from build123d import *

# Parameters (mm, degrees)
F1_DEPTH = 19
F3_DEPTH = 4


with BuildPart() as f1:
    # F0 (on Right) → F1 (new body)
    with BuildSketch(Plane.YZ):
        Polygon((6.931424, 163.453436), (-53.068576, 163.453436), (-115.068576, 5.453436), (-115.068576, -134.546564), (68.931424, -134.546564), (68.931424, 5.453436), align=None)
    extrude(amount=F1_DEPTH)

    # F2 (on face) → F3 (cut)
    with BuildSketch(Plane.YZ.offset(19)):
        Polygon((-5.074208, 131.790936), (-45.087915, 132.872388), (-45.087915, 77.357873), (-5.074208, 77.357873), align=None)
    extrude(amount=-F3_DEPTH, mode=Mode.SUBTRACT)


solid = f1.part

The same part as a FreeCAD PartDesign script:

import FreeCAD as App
import Part
import Sketcher


def add_polygon(sketch, points):
    """Adds a closed chain of lines whose ends are joined by coincident constraints."""
    first, n = sketch.GeometryCount, len(points)
    for a, b in zip(points, points[1:] + points[:1]):
        sketch.addGeometry(Part.LineSegment(App.Vector(*a, 0), App.Vector(*b, 0)), False)
    for i in range(n):
        sketch.addConstraint(Sketcher.Constraint("Coincident", first + i, 2, first + (i + 1) % n, 1))

doc = App.newDocument("Part")
body = doc.addObject("PartDesign::Body", "Body")

# Sketch on YZ plane
sketch1 = body.newObject("Sketcher::SketchObject", "Sketch")
sketch1.AttachmentSupport = (doc.getObject("YZ_Plane"), [""])
sketch1.MapMode = "FlatFace"
add_polygon(sketch1, [(6.931424, 163.453436), (-53.068576, 163.453436), (-115.068576, 5.453436), (-115.068576, -134.546564), (68.931424, -134.546564), (68.931424, 5.453436)])  # lines 0-5
sketch1.addConstraint(Sketcher.Constraint("Horizontal", 0))
sketch1.addConstraint(Sketcher.Constraint("Vertical", 2))
sketch1.addConstraint(Sketcher.Constraint("Horizontal", 3))
sketch1.addConstraint(Sketcher.Constraint("Vertical", 4))
sketch1.addConstraint(Sketcher.Constraint("Horizontal", 1, 2, 4, 2))
sketch1.addConstraint(Sketcher.Constraint("Equal", 1, 5))
sketch1.addConstraint(Sketcher.Constraint("DistanceX", 0, 2, 0, 1, 60.0))
sketch1.addConstraint(Sketcher.Constraint("DistanceX", 3, 1, 3, 2, 184.0))
sketch1.addConstraint(Sketcher.Constraint("DistanceY", 2, 2, 2, 1, 140.0))
sketch1.addConstraint(Sketcher.Constraint("DistanceY", 1, 2, 0, 2, 158.0))
sketch1.addConstraint(Sketcher.Constraint("DistanceX", 0, 2, -1, 1, 53.068576))
sketch1.addConstraint(Sketcher.Constraint("DistanceY", -1, 1, 0, 2, 163.453436))
pad1 = body.newObject("PartDesign::Pad", "Pad")
pad1.Profile = sketch1
pad1.Length = 19

# Sketch on YZ plane
sketch2 = body.newObject("Sketcher::SketchObject", "Sketch001")
sketch2.AttachmentSupport = (doc.getObject("YZ_Plane"), [""])
sketch2.MapMode = "FlatFace"
sketch2.AttachmentOffset = App.Placement(App.Vector(0, 0, 19), App.Rotation())
add_polygon(sketch2, [(-5.074208, 131.790936), (-45.087915, 132.872388), (-45.087915, 77.357873), (-5.074208, 77.357873)])  # lines 0-3
sketch2.addConstraint(Sketcher.Constraint("Vertical", 1))
sketch2.addConstraint(Sketcher.Constraint("Horizontal", 2))
sketch2.addConstraint(Sketcher.Constraint("Vertical", 3))
sketch2.addConstraint(Sketcher.Constraint("Distance", 0, 40.028319))
sketch2.addConstraint(Sketcher.Constraint("DistanceX", 2, 1, 2, 2, 40.013707))
sketch2.addConstraint(Sketcher.Constraint("DistanceY", 1, 2, 1, 1, 55.514515))
sketch2.addConstraint(Sketcher.Constraint("DistanceY", -1, 1, 0, 2, 132.872388))
sketch2.addConstraint(Sketcher.Constraint("DistanceX", 0, 2, -1, 1, 45.087915))
pocket1 = body.newObject("PartDesign::Pocket", "Pocket")
pocket1.Profile = sketch2
pocket1.Length = 4

doc.recompute()
